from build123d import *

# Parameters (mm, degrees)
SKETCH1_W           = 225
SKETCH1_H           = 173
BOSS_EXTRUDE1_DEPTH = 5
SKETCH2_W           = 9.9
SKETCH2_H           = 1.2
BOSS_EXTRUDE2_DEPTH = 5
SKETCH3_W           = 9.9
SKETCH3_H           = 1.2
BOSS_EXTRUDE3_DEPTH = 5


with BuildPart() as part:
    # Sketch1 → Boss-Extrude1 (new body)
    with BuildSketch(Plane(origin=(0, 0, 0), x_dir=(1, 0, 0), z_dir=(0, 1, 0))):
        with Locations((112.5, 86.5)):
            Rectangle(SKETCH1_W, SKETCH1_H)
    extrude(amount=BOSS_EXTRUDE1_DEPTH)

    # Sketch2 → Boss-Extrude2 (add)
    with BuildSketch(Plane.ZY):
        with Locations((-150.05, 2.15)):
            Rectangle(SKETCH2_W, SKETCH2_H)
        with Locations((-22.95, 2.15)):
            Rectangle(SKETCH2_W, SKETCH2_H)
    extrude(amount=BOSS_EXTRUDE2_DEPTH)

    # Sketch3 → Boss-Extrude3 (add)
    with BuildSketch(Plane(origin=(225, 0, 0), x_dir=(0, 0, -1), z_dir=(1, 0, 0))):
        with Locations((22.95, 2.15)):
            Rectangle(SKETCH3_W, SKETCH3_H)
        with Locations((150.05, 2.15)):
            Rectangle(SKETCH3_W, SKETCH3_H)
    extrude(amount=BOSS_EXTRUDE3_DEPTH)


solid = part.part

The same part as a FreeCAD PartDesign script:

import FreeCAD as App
import Part
import Sketcher
from FreeCAD import Vector


def add_polygon(sketch, points):
    """Adds a closed chain of lines whose ends are joined by coincident constraints."""
    first, n = sketch.GeometryCount, len(points)
    for a, b in zip(points, points[1:] + points[:1]):
        sketch.addGeometry(Part.LineSegment(App.Vector(*a, 0), App.Vector(*b, 0)), False)
    for i in range(n):
        sketch.addConstraint(Sketcher.Constraint("Coincident", first + i, 2, first + (i + 1) % n, 1))

doc = App.newDocument("Part")
body = doc.addObject("PartDesign::Body", "Body")

# Sketch on XZ plane
sketch1 = body.newObject("Sketcher::SketchObject", "Sketch")
sketch1.AttachmentSupport = (doc.getObject("XZ_Plane"), [""])
sketch1.MapMode = "FlatFace"
add_polygon(sketch1, [(0, -173), (0, 0), (225, 0), (225, -173)])  # lines 0-3
sketch1.addConstraint(Sketcher.Constraint("Vertical", 0))
sketch1.addConstraint(Sketcher.Constraint("Horizontal", 1))
sketch1.addConstraint(Sketcher.Constraint("Vertical", 2))
sketch1.addConstraint(Sketcher.Constraint("Horizontal", 3))
sketch1.addConstraint(Sketcher.Constraint("Coincident", 0, 2, -1, 1))
sketch1.addConstraint(Sketcher.Constraint("DistanceX", 1, 1, 1, 2, 225.0))
sketch1.addConstraint(Sketcher.Constraint("DistanceY", 0, 1, 0, 2, 173.0))
pad1 = body.newObject("PartDesign::Pad", "Pad")
pad1.Profile = sketch1
pad1.Length = 5
pad1.Reversed = True

# Sketch on YZ plane
sketch2 = body.newObject("Sketcher::SketchObject", "Sketch001")
sketch2.AttachmentSupport = (doc.getObject("YZ_Plane"), [""])
sketch2.MapMode = "FlatFace"
add_polygon(sketch2, [(2.8, -155), (1.6, -155), (1.6, -145.1), (2.8, -145.1)])  # lines 0-3
add_polygon(sketch2, [(2.8, -27.9), (1.6, -27.9), (1.6, -18), (2.8, -18)])  # lines 4-7
sketch2.addConstraint(Sketcher.Constraint("Horizontal", 0))
sketch2.addConstraint(Sketcher.Constraint("Vertical", 1))
sketch2.addConstraint(Sketcher.Constraint("Horizontal", 2))
sketch2.addConstraint(Sketcher.Constraint("Vertical", 3))
sketch2.addConstraint(Sketcher.Constraint("Horizontal", 4))
sketch2.addConstraint(Sketcher.Constraint("Vertical", 5))
sketch2.addConstraint(Sketcher.Constraint("Horizontal", 6))
sketch2.addConstraint(Sketcher.Constraint("Vertical", 7))
sketch2.addConstraint(Sketcher.Constraint("Vertical", 1, 2, 4, 2))
sketch2.addConstraint(Sketcher.Constraint("Vertical", 3, 2, 6, 2))
sketch2.addConstraint(Sketcher.Constraint("Equal", 3, 5))
sketch2.addConstraint(Sketcher.Constraint("DistanceX", 0, 2, 0, 1, 1.2))
sketch2.addConstraint(Sketcher.Constraint("DistanceY", 1, 1, 1, 2, 9.9))
sketch2.addConstraint(Sketcher.Constraint("DistanceY", 0, 2, -1, 1, 155.0))
sketch2.addConstraint(Sketcher.Constraint("DistanceY", 5, 2, -1, 1, 18.0))
sketch2.addConstraint(Sketcher.Constraint("DistanceX", -1, 1, 0, 2, 1.55))
pad2 = body.newObject("PartDesign::Pad", "Pad001")
pad2.Profile = sketch2
pad2.Length = 5
pad2.Reversed = True

# Sketch on YZ plane
sketch3 = body.newObject("Sketcher::SketchObject", "Sketch002")
sketch3.AttachmentSupport = (doc.getObject("YZ_Plane"), [""])
sketch3.MapMode = "FlatFace"
sketch3.AttachmentOffset = App.Placement(Vector(0, 0, 225), App.Rotation())
add_polygon(sketch3, [(2.8, -18), (1.6, -18), (1.6, -27.9), (2.8, -27.9)])  # lines 0-3
add_polygon(sketch3, [(2.8, -145.1), (1.6, -145.1), (1.6, -155), (2.8, -155)])  # lines 4-7
sketch3.addConstraint(Sketcher.Constraint("Horizontal", 0))
sketch3.addConstraint(Sketcher.Constraint("Vertical", 1))
sketch3.addConstraint(Sketcher.Constraint("Horizontal", 2))
sketch3.addConstraint(Sketcher.Constraint("Vertical", 3))
sketch3.addConstraint(Sketcher.Constraint("Horizontal", 4))
sketch3.addConstraint(Sketcher.Constraint("Vertical", 5))
sketch3.addConstraint(Sketcher.Constraint("Horizontal", 6))
sketch3.addConstraint(Sketcher.Constraint("Vertical", 7))
sketch3.addConstraint(Sketcher.Constraint("Vertical", 1, 2, 4, 2))
sketch3.addConstraint(Sketcher.Constraint("Vertical", 3, 2, 6, 2))
sketch3.addConstraint(Sketcher.Constraint("Equal", 3, 5))
sketch3.addConstraint(Sketcher.Constraint("DistanceX", 0, 2, 0, 1, 1.2))
sketch3.addConstraint(Sketcher.Constraint("DistanceY", 1, 2, 1, 1, 9.9))
sketch3.addConstraint(Sketcher.Constraint("DistanceY", 0, 2, -1, 1, 18.0))
sketch3.addConstraint(Sketcher.Constraint("DistanceY", 5, 2, -1, 1, 155.0))
sketch3.addConstraint(Sketcher.Constraint("DistanceX", -1, 1, 0, 2, 1.55))
pad3 = body.newObject("PartDesign::Pad", "Pad002")
pad3.Profile = sketch3
pad3.Length = 5

doc.recompute()
